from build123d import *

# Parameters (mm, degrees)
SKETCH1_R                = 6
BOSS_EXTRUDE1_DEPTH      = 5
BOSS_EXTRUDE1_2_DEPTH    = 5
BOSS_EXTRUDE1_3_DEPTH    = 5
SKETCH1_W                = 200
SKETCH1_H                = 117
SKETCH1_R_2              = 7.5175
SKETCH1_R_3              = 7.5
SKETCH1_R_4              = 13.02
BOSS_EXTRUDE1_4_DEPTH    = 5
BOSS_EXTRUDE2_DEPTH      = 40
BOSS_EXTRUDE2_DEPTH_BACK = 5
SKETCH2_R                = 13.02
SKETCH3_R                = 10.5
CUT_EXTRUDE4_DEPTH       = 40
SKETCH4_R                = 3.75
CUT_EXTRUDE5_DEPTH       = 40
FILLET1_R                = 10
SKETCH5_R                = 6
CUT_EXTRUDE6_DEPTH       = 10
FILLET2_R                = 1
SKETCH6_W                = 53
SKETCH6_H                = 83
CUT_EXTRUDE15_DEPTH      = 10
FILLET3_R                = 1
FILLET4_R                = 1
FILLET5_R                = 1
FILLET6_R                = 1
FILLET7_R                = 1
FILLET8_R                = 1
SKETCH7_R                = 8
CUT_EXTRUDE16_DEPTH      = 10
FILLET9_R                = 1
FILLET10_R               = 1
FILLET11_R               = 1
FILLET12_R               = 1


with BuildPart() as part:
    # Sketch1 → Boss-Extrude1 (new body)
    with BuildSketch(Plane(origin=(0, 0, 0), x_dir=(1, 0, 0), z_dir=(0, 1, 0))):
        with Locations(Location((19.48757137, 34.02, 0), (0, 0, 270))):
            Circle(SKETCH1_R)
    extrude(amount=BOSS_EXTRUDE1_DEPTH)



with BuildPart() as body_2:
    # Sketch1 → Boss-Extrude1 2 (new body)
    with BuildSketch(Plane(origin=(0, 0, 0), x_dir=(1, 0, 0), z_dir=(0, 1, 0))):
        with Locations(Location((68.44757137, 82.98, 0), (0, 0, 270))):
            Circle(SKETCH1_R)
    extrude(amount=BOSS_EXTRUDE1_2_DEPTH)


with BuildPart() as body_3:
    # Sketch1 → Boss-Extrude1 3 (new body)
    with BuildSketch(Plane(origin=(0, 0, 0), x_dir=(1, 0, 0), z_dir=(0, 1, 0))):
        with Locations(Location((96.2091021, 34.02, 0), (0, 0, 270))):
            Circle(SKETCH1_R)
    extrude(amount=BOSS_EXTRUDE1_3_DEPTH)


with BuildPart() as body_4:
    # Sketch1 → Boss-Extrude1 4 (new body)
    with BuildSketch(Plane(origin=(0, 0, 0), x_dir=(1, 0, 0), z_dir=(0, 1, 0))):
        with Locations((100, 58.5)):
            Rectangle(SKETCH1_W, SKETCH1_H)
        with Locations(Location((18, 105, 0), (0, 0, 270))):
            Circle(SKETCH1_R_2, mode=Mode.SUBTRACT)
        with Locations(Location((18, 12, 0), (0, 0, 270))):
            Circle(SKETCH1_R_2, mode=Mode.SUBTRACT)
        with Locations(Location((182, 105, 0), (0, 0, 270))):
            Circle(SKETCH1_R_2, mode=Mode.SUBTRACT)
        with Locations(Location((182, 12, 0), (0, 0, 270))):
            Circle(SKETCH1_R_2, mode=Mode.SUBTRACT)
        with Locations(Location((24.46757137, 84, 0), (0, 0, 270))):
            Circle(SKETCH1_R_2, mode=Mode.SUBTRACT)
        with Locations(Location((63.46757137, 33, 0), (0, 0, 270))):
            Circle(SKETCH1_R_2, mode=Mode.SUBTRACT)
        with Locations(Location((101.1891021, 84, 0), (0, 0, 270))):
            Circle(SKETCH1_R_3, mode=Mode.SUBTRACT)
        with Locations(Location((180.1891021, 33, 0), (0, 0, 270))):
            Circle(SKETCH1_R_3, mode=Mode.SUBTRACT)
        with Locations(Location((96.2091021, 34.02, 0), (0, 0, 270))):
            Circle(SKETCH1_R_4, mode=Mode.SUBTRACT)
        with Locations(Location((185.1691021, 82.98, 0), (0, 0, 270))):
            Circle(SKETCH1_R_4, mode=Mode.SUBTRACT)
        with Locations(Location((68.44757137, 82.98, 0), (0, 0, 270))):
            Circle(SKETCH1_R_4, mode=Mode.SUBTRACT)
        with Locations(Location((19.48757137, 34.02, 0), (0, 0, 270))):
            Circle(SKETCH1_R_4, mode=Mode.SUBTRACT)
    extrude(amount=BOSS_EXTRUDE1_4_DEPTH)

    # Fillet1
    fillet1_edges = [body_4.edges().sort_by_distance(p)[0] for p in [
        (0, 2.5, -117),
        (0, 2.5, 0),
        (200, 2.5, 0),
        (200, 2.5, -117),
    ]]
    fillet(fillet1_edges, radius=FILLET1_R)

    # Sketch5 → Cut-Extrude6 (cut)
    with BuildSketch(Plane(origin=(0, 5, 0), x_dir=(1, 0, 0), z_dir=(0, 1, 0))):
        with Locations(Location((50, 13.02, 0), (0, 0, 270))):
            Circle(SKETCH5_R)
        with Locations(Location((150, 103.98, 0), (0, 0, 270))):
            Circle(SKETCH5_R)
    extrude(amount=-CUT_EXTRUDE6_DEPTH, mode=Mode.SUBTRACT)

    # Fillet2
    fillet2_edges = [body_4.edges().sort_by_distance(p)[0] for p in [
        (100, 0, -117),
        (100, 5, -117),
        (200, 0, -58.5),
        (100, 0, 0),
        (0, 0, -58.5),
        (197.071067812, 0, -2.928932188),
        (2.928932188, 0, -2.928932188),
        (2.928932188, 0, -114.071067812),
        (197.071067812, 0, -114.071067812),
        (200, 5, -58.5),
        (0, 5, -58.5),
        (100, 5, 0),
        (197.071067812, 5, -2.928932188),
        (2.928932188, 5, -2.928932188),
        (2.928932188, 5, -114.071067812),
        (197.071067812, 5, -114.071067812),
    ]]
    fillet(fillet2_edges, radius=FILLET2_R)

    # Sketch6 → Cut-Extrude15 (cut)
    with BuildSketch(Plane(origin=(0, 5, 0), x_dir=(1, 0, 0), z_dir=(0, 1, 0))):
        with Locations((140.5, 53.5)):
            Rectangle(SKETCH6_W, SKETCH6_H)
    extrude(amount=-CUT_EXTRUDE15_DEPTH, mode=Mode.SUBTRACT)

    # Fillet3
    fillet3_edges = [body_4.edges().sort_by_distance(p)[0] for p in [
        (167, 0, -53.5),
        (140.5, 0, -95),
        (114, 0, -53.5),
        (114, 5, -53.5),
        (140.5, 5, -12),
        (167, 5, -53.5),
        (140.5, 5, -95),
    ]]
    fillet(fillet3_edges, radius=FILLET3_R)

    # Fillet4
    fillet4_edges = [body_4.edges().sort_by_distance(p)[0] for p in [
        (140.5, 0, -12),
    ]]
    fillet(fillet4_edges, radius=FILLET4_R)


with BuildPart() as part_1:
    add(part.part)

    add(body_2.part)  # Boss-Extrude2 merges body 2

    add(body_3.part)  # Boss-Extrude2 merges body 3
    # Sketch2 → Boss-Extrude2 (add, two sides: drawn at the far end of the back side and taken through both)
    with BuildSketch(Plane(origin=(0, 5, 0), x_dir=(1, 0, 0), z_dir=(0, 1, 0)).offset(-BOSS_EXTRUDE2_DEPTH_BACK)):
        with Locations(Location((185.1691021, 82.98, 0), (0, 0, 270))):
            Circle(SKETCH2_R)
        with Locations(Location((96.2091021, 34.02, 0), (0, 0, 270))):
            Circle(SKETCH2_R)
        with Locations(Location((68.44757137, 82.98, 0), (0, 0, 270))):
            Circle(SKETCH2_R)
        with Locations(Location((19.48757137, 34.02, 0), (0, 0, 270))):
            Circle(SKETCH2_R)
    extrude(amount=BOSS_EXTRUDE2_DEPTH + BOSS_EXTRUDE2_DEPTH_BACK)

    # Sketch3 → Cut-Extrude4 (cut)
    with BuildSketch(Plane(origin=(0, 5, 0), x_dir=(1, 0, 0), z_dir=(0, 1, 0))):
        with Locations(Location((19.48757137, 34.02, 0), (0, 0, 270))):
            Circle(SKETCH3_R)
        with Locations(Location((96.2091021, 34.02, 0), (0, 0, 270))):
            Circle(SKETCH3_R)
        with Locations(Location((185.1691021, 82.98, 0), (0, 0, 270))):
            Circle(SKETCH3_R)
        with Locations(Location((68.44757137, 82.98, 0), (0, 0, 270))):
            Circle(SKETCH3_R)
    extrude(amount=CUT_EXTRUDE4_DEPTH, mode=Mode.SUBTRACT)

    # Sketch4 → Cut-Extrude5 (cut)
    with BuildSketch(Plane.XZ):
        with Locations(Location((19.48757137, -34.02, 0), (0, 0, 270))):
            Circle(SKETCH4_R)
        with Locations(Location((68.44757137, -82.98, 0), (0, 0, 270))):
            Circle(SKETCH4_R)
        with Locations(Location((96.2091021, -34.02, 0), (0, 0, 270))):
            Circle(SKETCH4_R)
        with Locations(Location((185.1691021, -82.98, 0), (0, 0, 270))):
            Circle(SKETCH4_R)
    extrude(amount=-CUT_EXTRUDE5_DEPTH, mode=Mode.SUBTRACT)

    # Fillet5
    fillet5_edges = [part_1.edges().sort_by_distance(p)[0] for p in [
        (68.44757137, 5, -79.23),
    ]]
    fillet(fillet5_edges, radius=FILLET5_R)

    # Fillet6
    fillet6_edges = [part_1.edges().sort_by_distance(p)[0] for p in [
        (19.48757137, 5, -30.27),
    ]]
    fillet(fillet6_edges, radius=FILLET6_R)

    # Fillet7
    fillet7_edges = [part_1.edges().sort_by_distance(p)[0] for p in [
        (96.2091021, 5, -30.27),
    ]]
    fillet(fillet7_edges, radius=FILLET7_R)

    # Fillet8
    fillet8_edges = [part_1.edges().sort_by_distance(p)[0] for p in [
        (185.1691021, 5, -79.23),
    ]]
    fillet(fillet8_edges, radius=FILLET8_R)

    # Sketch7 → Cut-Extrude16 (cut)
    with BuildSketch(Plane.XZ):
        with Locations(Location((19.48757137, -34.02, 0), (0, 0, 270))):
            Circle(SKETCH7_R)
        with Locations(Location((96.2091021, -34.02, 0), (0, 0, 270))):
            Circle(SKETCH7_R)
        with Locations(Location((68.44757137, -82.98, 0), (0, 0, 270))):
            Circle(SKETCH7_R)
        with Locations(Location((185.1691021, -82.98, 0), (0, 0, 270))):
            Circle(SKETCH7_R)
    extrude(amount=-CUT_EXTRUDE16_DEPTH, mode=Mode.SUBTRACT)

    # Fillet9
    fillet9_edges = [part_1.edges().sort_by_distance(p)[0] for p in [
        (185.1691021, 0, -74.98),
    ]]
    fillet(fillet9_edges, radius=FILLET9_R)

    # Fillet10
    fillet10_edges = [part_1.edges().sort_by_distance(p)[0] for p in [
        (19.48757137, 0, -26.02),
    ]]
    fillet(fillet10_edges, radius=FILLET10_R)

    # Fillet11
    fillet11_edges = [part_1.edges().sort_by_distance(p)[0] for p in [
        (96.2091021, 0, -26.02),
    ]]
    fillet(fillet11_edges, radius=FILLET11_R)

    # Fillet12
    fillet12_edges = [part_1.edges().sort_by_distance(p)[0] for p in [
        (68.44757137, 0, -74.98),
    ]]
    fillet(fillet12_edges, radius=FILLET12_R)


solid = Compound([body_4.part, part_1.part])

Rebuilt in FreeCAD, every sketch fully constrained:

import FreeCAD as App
import Part
import Sketcher
Q = App.Units.Quantity


def edges_at(feature, points):
    """Names of the edges that pass closest to the given points."""
    edges = feature.Shape.Edges
    near = lambda p: min(range(len(edges)), key=lambda i: edges[i].distToShape(Part.Vertex(*p))[0])
    return sorted({f"Edge{near(p) + 1}" for p in points})


def add_polygon(sketch, points):
    """Adds a closed chain of lines whose ends are joined by coincident constraints."""
    first, n = sketch.GeometryCount, len(points)
    for a, b in zip(points, points[1:] + points[:1]):
        sketch.addGeometry(Part.LineSegment(App.Vector(*a, 0), App.Vector(*b, 0)), False)
    for i in range(n):
        sketch.addConstraint(Sketcher.Constraint("Coincident", first + i, 2, first + (i + 1) % n, 1))

doc = App.newDocument("Part")
body = doc.addObject("PartDesign::Body", "Body")

# Sketch on XZ plane
sketch1 = body.newObject("Sketcher::SketchObject", "Sketch")
sketch1.AttachmentSupport = (doc.getObject("XZ_Plane"), [""])
sketch1.MapMode = "FlatFace"
sketch1.addGeometry(Part.Circle(App.Vector(19.487571, -34.02, 0), App.Vector(0, 0, 1), 6), False)
sketch1.addConstraint(Sketcher.Constraint("Diameter", 0, Q("12 mm")))
sketch1.addConstraint(Sketcher.Constraint("DistanceY", 0, 3, -1, 1, Q("34.02 mm")))
sketch1.addConstraint(Sketcher.Constraint("DistanceX", -1, 1, 0, 3, Q("19.487571 mm")))
pad1 = body.newObject("PartDesign::Pad", "Pad")
pad1.Profile = sketch1
pad1.Length = 5
pad1.Reversed = True
body2 = doc.addObject("PartDesign::Body", "Body001")

# Sketch on XZ plane
sketch2 = body2.newObject("Sketcher::SketchObject", "Sketch001")
sketch2.AttachmentSupport = (doc.getObject("XZ_Plane001"), [""])
sketch2.MapMode = "FlatFace"
sketch2.addGeometry(Part.Circle(App.Vector(68.447571, -82.98, 0), App.Vector(0, 0, 1), 6), False)
sketch2.addConstraint(Sketcher.Constraint("Diameter", 0, Q("12 mm")))
sketch2.addConstraint(Sketcher.Constraint("DistanceY", 0, 3, -1, 1, Q("82.98 mm")))
sketch2.addConstraint(Sketcher.Constraint("DistanceX", -1, 1, 0, 3, Q("68.447571 mm")))
pad2 = body2.newObject("PartDesign::Pad", "Pad001")
pad2.Profile = sketch2
pad2.Length = 5
pad2.Reversed = True
body3 = doc.addObject("PartDesign::Body", "Body002")

# Sketch on XZ plane
sketch3 = body3.newObject("Sketcher::SketchObject", "Sketch002")
sketch3.AttachmentSupport = (doc.getObject("XZ_Plane002"), [""])
sketch3.MapMode = "FlatFace"
sketch3.addGeometry(Part.Circle(App.Vector(96.209102, -34.02, 0), App.Vector(0, 0, 1), 6), False)
sketch3.addConstraint(Sketcher.Constraint("Diameter", 0, Q("12 mm")))
sketch3.addConstraint(Sketcher.Constraint("DistanceY", 0, 3, -1, 1, Q("34.02 mm")))
sketch3.addConstraint(Sketcher.Constraint("DistanceX", -1, 1, 0, 3, Q("96.209102 mm")))
pad3 = body3.newObject("PartDesign::Pad", "Pad002")
pad3.Profile = sketch3
pad3.Length = 5
pad3.Reversed = True
body4 = doc.addObject("PartDesign::Body", "Body003")

# Sketch on XZ plane
sketch4 = body4.newObject("Sketcher::SketchObject", "Sketch003")
sketch4.AttachmentSupport = (doc.getObject("XZ_Plane003"), [""])
sketch4.MapMode = "FlatFace"
add_polygon(sketch4, [(0, -117), (0, 0), (200, 0), (200, -117)])  # lines 0-3
sketch4.addGeometry(Part.Circle(App.Vector(18, -12, 0), App.Vector(0, 0, 1), 7.5175), False)  # 4
sketch4.addGeometry(Part.Circle(App.Vector(19.487571, -34.02, 0), App.Vector(0, 0, 1), 13.02), False)  # 5
sketch4.addGeometry(Part.Circle(App.Vector(63.467571, -33, 0), App.Vector(0, 0, 1), 7.5175), False)  # 6
sketch4.addGeometry(Part.Circle(App.Vector(96.209102, -34.02, 0), App.Vector(0, 0, 1), 13.02), False)  # 7
sketch4.addGeometry(Part.Circle(App.Vector(182, -12, 0), App.Vector(0, 0, 1), 7.5175), False)  # 8
sketch4.addGeometry(Part.Circle(App.Vector(180.189102, -33, 0), App.Vector(0, 0, 1), 7.5), False)  # 9
sketch4.addGeometry(Part.Circle(App.Vector(24.467571, -84, 0), App.Vector(0, 0, 1), 7.5175), False)  # 10
sketch4.addGeometry(Part.Circle(App.Vector(68.447571, -82.98, 0), App.Vector(0, 0, 1), 13.02), False)  # 11
sketch4.addGeometry(Part.Circle(App.Vector(101.189102, -84, 0), App.Vector(0, 0, 1), 7.5), False)  # 12
sketch4.addGeometry(Part.Circle(App.Vector(18, -105, 0), App.Vector(0, 0, 1), 7.5175), False)  # 13
sketch4.addGeometry(Part.Circle(App.Vector(185.169102, -82.98, 0), App.Vector(0, 0, 1), 13.02), False)  # 14
sketch4.addGeometry(Part.Circle(App.Vector(182, -105, 0), App.Vector(0, 0, 1), 7.5175), False)  # 15
sketch4.addConstraint(Sketcher.Constraint("Vertical", 0))
sketch4.addConstraint(Sketcher.Constraint("Horizontal", 1))
sketch4.addConstraint(Sketcher.Constraint("Vertical", 2))
sketch4.addConstraint(Sketcher.Constraint("Horizontal", 3))
sketch4.addConstraint(Sketcher.Constraint("Coincident", 0, 2, -1, 1))
sketch4.addConstraint(Sketcher.Constraint("Equal", 4, 6))
sketch4.addConstraint(Sketcher.Constraint("Equal", 5, 7))
sketch4.addConstraint(Sketcher.Constraint("Equal", 6, 8))
sketch4.addConstraint(Sketcher.Constraint("Equal", 8, 10))
sketch4.addConstraint(Sketcher.Constraint("Equal", 7, 11))
sketch4.addConstraint(Sketcher.Constraint("Equal", 9, 12))
sketch4.addConstraint(Sketcher.Constraint("Equal", 10, 13))
sketch4.addConstraint(Sketcher.Constraint("Equal", 11, 14))
sketch4.addConstraint(Sketcher.Constraint("Equal", 13, 15))
sketch4.addConstraint(Sketcher.Constraint("Horizontal", 5, 3, 7, 3))
sketch4.addConstraint(Sketcher.Constraint("Horizontal", 4, 3, 8, 3))
sketch4.addConstraint(Sketcher.Constraint("Horizontal", 6, 3, 9, 3))
sketch4.addConstraint(Sketcher.Constraint("Horizontal", 10, 3, 12, 3))
sketch4.addConstraint(Sketcher.Constraint("Horizontal", 11, 3, 14, 3))
sketch4.addConstraint(Sketcher.Constraint("Horizontal", 13, 3, 15, 3))
sketch4.addConstraint(Sketcher.Constraint("Vertical", 4, 3, 13, 3))
sketch4.addConstraint(Sketcher.Constraint("Vertical", 8, 3, 15, 3))
sketch4.addConstraint(Sketcher.Constraint("Diameter", 9, Q("15 mm")))
sketch4.addConstraint(Sketcher.Constraint("Diameter", 5, Q("26.04 mm")))
sketch4.addConstraint(Sketcher.Constraint("DistanceX", 1, 1, 1, 2, Q("200 mm")))
sketch4.addConstraint(Sketcher.Constraint("DistanceY", 0, 1, 0, 2, Q("117 mm")))
sketch4.addConstraint(Sketcher.Constraint("Diameter", 4, Q("15.035 mm")))
sketch4.addConstraint(Sketcher.Constraint("DistanceX", -1, 1, 4, 3, Q("18 mm")))
sketch4.addConstraint(Sketcher.Constraint("DistanceY", 4, 3, -1, 1, Q("12 mm")))
sketch4.addConstraint(Sketcher.Constraint("DistanceY", 6, 3, -1, 1, Q("33 mm")))
sketch4.addConstraint(Sketcher.Constraint("DistanceX", -1, 1, 8, 3, Q("182 mm")))
sketch4.addConstraint(Sketcher.Constraint("DistanceY", 10, 3, -1, 1, Q("84 mm")))
sketch4.addConstraint(Sketcher.Constraint("DistanceY", 13, 3, -1, 1, Q("105 mm")))
sketch4.addConstraint(Sketcher.Constraint("DistanceX", 10, 3, 6, 3, Q("39 mm")))
sketch4.addConstraint(Sketcher.Constraint("DistanceX", 12, 3, 9, 3, Q("79 mm")))
sketch4.addConstraint(Sketcher.Constraint("DistanceY", 5, 3, -1, 1, Q("34.02 mm")))
sketch4.addConstraint(Sketcher.Constraint("DistanceY", 11, 3, -1, 1, Q("82.98 mm")))
sketch4.addConstraint(Sketcher.Constraint("DistanceX", 5, 3, 6, 3, Q("43.98 mm")))
sketch4.addConstraint(Sketcher.Constraint("DistanceX", 7, 3, 9, 3, Q("83.98 mm")))
sketch4.addConstraint(Sketcher.Constraint("DistanceX", 10, 3, 11, 3, Q("43.98 mm")))
sketch4.addConstraint(Sketcher.Constraint("DistanceX", 9, 3, 14, 3, Q("4.98 mm")))
sketch4.addConstraint(Sketcher.Constraint("DistanceX", -1, 1, 5, 3, Q("19.487571 mm")))
sketch4.addConstraint(Sketcher.Constraint("DistanceX", 6, 3, 7, 3, Q("32.741531 mm")))
pad4 = body4.newObject("PartDesign::Pad", "Pad003")
pad4.Profile = sketch4
pad4.Length = 5
pad4.Reversed = True
doc.recompute()

fillet = body4.newObject("PartDesign::Fillet", "Fillet")
fillet.Base = (pad4, edges_at(pad4, [
    (0, 2.5, -117),
    (0, 2.5, 0),
    (200, 2.5, 0),
    (200, 2.5, -117),
]))
fillet.Radius = 10

# Sketch on XZ plane
sketch5 = body4.newObject("Sketcher::SketchObject", "Sketch004")
sketch5.AttachmentSupport = (doc.getObject("XZ_Plane003"), [""])
sketch5.MapMode = "FlatFace"
sketch5.AttachmentOffset = App.Placement(App.Vector(0, 0, -5), App.Rotation())
sketch5.addGeometry(Part.Circle(App.Vector(50, -13.02, 0), App.Vector(0, 0, 1), 6), False)
sketch5.addGeometry(Part.Circle(App.Vector(150, -103.98, 0), App.Vector(0, 0, 1), 6), False)
sketch5.addConstraint(Sketcher.Constraint("Equal", 0, 1))
sketch5.addConstraint(Sketcher.Constraint("Diameter", 0, Q("12 mm")))
sketch5.addConstraint(Sketcher.Constraint("DistanceX", -1, 1, 0, 3, Q("50 mm")))
sketch5.addConstraint(Sketcher.Constraint("DistanceX", -1, 1, 1, 3, Q("150 mm")))
sketch5.addConstraint(Sketcher.Constraint("DistanceY", 0, 3, -1, 1, Q("13.02 mm")))
sketch5.addConstraint(Sketcher.Constraint("DistanceY", 1, 3, -1, 1, Q("103.98 mm")))
pocket1 = body4.newObject("PartDesign::Pocket", "Pocket")
pocket1.Profile = sketch5
pocket1.Length = 10
pocket1.Reversed = True
doc.recompute()

fillet2 = body4.newObject("PartDesign::Fillet", "Fillet001")
fillet2.Base = (pocket1, edges_at(pocket1, [
    (100, 0, -117),
    (100, 5, -117),
    (200, 0, -58.5),
    (100, 0, 0),
    (0, 0, -58.5),
    (197.071, 0, -2.929),
    (2.929, 0, -2.929),
    (2.929, 0, -114.071),
    (197.071, 0, -114.071),
    (200, 5, -58.5),
    (0, 5, -58.5),
    (100, 5, 0),
    (197.071, 5, -2.929),
    (2.929, 5, -2.929),
    (2.929, 5, -114.071),
    (197.071, 5, -114.071),
]))
fillet2.Radius = 1

# Sketch on XZ plane
sketch6 = body4.newObject("Sketcher::SketchObject", "Sketch005")
sketch6.AttachmentSupport = (doc.getObject("XZ_Plane003"), [""])
sketch6.MapMode = "FlatFace"
sketch6.AttachmentOffset = App.Placement(App.Vector(0, 0, -5), App.Rotation())
add_polygon(sketch6, [(114, -95), (114, -12), (167, -12), (167, -95)])  # lines 0-3
sketch6.addConstraint(Sketcher.Constraint("Vertical", 0))
sketch6.addConstraint(Sketcher.Constraint("Horizontal", 1))
sketch6.addConstraint(Sketcher.Constraint("Vertical", 2))
sketch6.addConstraint(Sketcher.Constraint("Horizontal", 3))
sketch6.addConstraint(Sketcher.Constraint("DistanceX", 1, 1, 1, 2, Q("53 mm")))
sketch6.addConstraint(Sketcher.Constraint("DistanceY", 0, 1, 0, 2, Q("83 mm")))
sketch6.addConstraint(Sketcher.Constraint("DistanceX", -1, 1, 0, 2, Q("114 mm")))
sketch6.addConstraint(Sketcher.Constraint("DistanceY", 0, 2, -1, 1, Q("12 mm")))
pocket2 = body4.newObject("PartDesign::Pocket", "Pocket001")
pocket2.Profile = sketch6
pocket2.Length = 10
pocket2.Reversed = True
doc.recompute()

fillet3 = body4.newObject("PartDesign::Fillet", "Fillet002")
fillet3.Base = (pocket2, edges_at(pocket2, [
    (167, 0, -53.5),
    (140.5, 0, -95),
    (114, 0, -53.5),
    (114, 5, -53.5),
    (140.5, 5, -12),
    (167, 5, -53.5),
    (140.5, 5, -95),
]))
fillet3.Radius = 1
doc.recompute()

fillet4 = body4.newObject("PartDesign::Fillet", "Fillet003")
fillet4.Base = (fillet3, edges_at(fillet3, [(140.5, 0, -12)]))
fillet4.Radius = 1
body.AllowCompound = True
doc.recompute()

boolean = body.newObject("PartDesign::Boolean", "Boolean")
boolean.Type = "Fuse"
boolean.addObjects([body2])
doc.recompute()

boolean2 = body.newObject("PartDesign::Boolean", "Boolean001")
boolean2.Type = "Fuse"
boolean2.addObjects([body3])

# Sketch on XZ plane
sketch7 = body.newObject("Sketcher::SketchObject", "Sketch006")
sketch7.AttachmentSupport = (doc.getObject("XZ_Plane"), [""])
sketch7.MapMode = "FlatFace"
sketch7.AttachmentOffset = App.Placement(App.Vector(0, 0, -5), App.Rotation())
sketch7.addGeometry(Part.Circle(App.Vector(185.169102, -82.98, 0), App.Vector(0, 0, 1), 13.02), False)
sketch7.addGeometry(Part.Circle(App.Vector(96.209102, -34.02, 0), App.Vector(0, 0, 1), 13.02), False)
sketch7.addGeometry(Part.Circle(App.Vector(68.447571, -82.98, 0), App.Vector(0, 0, 1), 13.02), False)
sketch7.addGeometry(Part.Circle(App.Vector(19.487571, -34.02, 0), App.Vector(0, 0, 1), 13.02), False)
sketch7.addConstraint(Sketcher.Constraint("Equal", 0, 1))
sketch7.addConstraint(Sketcher.Constraint("Equal", 1, 2))
sketch7.addConstraint(Sketcher.Constraint("Equal", 2, 3))
sketch7.addConstraint(Sketcher.Constraint("Horizontal", 0, 3, 2, 3))
sketch7.addConstraint(Sketcher.Constraint("Horizontal", 1, 3, 3, 3))
sketch7.addConstraint(Sketcher.Constraint("Diameter", 0, Q("26.04 mm")))
sketch7.addConstraint(Sketcher.Constraint("DistanceY", 0, 3, -1, 1, Q("82.98 mm")))
sketch7.addConstraint(Sketcher.Constraint("DistanceY", 1, 3, -1, 1, Q("34.02 mm")))
sketch7.addConstraint(Sketcher.Constraint("DistanceX", 1, 3, 0, 3, Q("88.96 mm")))
sketch7.addConstraint(Sketcher.Constraint("DistanceX", 3, 3, 2, 3, Q("48.96 mm")))
sketch7.addConstraint(Sketcher.Constraint("DistanceX", -1, 1, 2, 3, Q("68.447571 mm")))
sketch7.addConstraint(Sketcher.Constraint("DistanceX", 2, 3, 1, 3, Q("27.761531 mm")))
pad5 = body.newObject("PartDesign::Pad", "Pad004")
pad5.Profile = sketch7
pad5.Type = "TwoLengths"
pad5.Length = 40
pad5.Length2 = 5
pad5.Reversed = True

# Sketch on XZ plane
sketch8 = body.newObject("Sketcher::SketchObject", "Sketch007")
sketch8.AttachmentSupport = (doc.getObject("XZ_Plane"), [""])
sketch8.MapMode = "FlatFace"
sketch8.AttachmentOffset = App.Placement(App.Vector(0, 0, -5), App.Rotation())
sketch8.addGeometry(Part.Circle(App.Vector(19.487571, -34.02, 0), App.Vector(0, 0, 1), 10.5), False)
sketch8.addGeometry(Part.Circle(App.Vector(96.209102, -34.02, 0), App.Vector(0, 0, 1), 10.5), False)
sketch8.addGeometry(Part.Circle(App.Vector(185.169102, -82.98, 0), App.Vector(0, 0, 1), 10.5), False)
sketch8.addGeometry(Part.Circle(App.Vector(68.447571, -82.98, 0), App.Vector(0, 0, 1), 10.5), False)
sketch8.addConstraint(Sketcher.Constraint("Equal", 0, 1))
sketch8.addConstraint(Sketcher.Constraint("Equal", 1, 2))
sketch8.addConstraint(Sketcher.Constraint("Equal", 2, 3))
sketch8.addConstraint(Sketcher.Constraint("Horizontal", 0, 3, 1, 3))
sketch8.addConstraint(Sketcher.Constraint("Horizontal", 2, 3, 3, 3))
sketch8.addConstraint(Sketcher.Constraint("Diameter", 0, Q("21 mm")))
sketch8.addConstraint(Sketcher.Constraint("DistanceY", 0, 3, -1, 1, Q("34.02 mm")))
sketch8.addConstraint(Sketcher.Constraint("DistanceY", 2, 3, -1, 1, Q("82.98 mm")))
sketch8.addConstraint(Sketcher.Constraint("DistanceX", 1, 3, 2, 3, Q("88.96 mm")))
sketch8.addConstraint(Sketcher.Constraint("DistanceX", 0, 3, 3, 3, Q("48.96 mm")))
sketch8.addConstraint(Sketcher.Constraint("DistanceX", -1, 1, 0, 3, Q("19.487571 mm")))
sketch8.addConstraint(Sketcher.Constraint("DistanceX", 0, 3, 1, 3, Q("76.721531 mm")))
pocket3 = body.newObject("PartDesign::Pocket", "Pocket002")
pocket3.Profile = sketch8
pocket3.Length = 40

# Sketch on XZ plane
sketch9 = body.newObject("Sketcher::SketchObject", "Sketch008")
sketch9.AttachmentSupport = (doc.getObject("XZ_Plane"), [""])
sketch9.MapMode = "FlatFace"
sketch9.addGeometry(Part.Circle(App.Vector(19.487571, -34.02, 0), App.Vector(0, 0, 1), 3.75), False)
sketch9.addGeometry(Part.Circle(App.Vector(68.447571, -82.98, 0), App.Vector(0, 0, 1), 3.75), False)
sketch9.addGeometry(Part.Circle(App.Vector(96.209102, -34.02, 0), App.Vector(0, 0, 1), 3.75), False)
sketch9.addGeometry(Part.Circle(App.Vector(185.169102, -82.98, 0), App.Vector(0, 0, 1), 3.75), False)
sketch9.addConstraint(Sketcher.Constraint("Equal", 0, 1))
sketch9.addConstraint(Sketcher.Constraint("Equal", 1, 2))
sketch9.addConstraint(Sketcher.Constraint("Equal", 2, 3))
sketch9.addConstraint(Sketcher.Constraint("Horizontal", 0, 3, 2, 3))
sketch9.addConstraint(Sketcher.Constraint("Horizontal", 1, 3, 3, 3))
sketch9.addConstraint(Sketcher.Constraint("Diameter", 0, Q("7.5 mm")))
sketch9.addConstraint(Sketcher.Constraint("DistanceY", 0, 3, -1, 1, Q("34.02 mm")))
sketch9.addConstraint(Sketcher.Constraint("DistanceY", 1, 3, -1, 1, Q("82.98 mm")))
sketch9.addConstraint(Sketcher.Constraint("DistanceX", 0, 3, 1, 3, Q("48.96 mm")))
sketch9.addConstraint(Sketcher.Constraint("DistanceX", 2, 3, 3, 3, Q("88.96 mm")))
sketch9.addConstraint(Sketcher.Constraint("DistanceX", -1, 1, 0, 3, Q("19.487571 mm")))
sketch9.addConstraint(Sketcher.Constraint("DistanceX", 1, 3, 2, 3, Q("27.761531 mm")))
pocket4 = body.newObject("PartDesign::Pocket", "Pocket003")
pocket4.Profile = sketch9
pocket4.Length = 40
doc.recompute()

fillet5 = body.newObject("PartDesign::Fillet", "Fillet004")
fillet5.Base = (pocket4, edges_at(pocket4, [(68.448, 5, -79.23)]))
fillet5.Radius = 1
doc.recompute()

fillet6 = body.newObject("PartDesign::Fillet", "Fillet005")
fillet6.Base = (fillet5, edges_at(fillet5, [(19.488, 5, -30.27)]))
fillet6.Radius = 1
doc.recompute()

fillet7 = body.newObject("PartDesign::Fillet", "Fillet006")
fillet7.Base = (fillet6, edges_at(fillet6, [(96.209, 5, -30.27)]))
fillet7.Radius = 1
doc.recompute()

fillet8 = body.newObject("PartDesign::Fillet", "Fillet007")
fillet8.Base = (fillet7, edges_at(fillet7, [(185.169, 5, -79.23)]))
fillet8.Radius = 1

# Sketch on XZ plane
sketch10 = body.newObject("Sketcher::SketchObject", "Sketch009")
sketch10.AttachmentSupport = (doc.getObject("XZ_Plane"), [""])
sketch10.MapMode = "FlatFace"
sketch10.addGeometry(Part.Circle(App.Vector(19.487571, -34.02, 0), App.Vector(0, 0, 1), 8), False)
sketch10.addGeometry(Part.Circle(App.Vector(96.209102, -34.02, 0), App.Vector(0, 0, 1), 8), False)
sketch10.addGeometry(Part.Circle(App.Vector(68.447571, -82.98, 0), App.Vector(0, 0, 1), 8), False)
sketch10.addGeometry(Part.Circle(App.Vector(185.169102, -82.98, 0), App.Vector(0, 0, 1), 8), False)
sketch10.addConstraint(Sketcher.Constraint("Equal", 0, 1))
sketch10.addConstraint(Sketcher.Constraint("Equal", 1, 2))
sketch10.addConstraint(Sketcher.Constraint("Equal", 2, 3))
sketch10.addConstraint(Sketcher.Constraint("Horizontal", 0, 3, 1, 3))
sketch10.addConstraint(Sketcher.Constraint("Horizontal", 2, 3, 3, 3))
sketch10.addConstraint(Sketcher.Constraint("Diameter", 0, Q("16 mm")))
sketch10.addConstraint(Sketcher.Constraint("DistanceY", 0, 3, -1, 1, Q("34.02 mm")))
sketch10.addConstraint(Sketcher.Constraint("DistanceY", 2, 3, -1, 1, Q("82.98 mm")))
sketch10.addConstraint(Sketcher.Constraint("DistanceX", 0, 3, 2, 3, Q("48.96 mm")))
sketch10.addConstraint(Sketcher.Constraint("DistanceX", 1, 3, 3, 3, Q("88.96 mm")))
sketch10.addConstraint(Sketcher.Constraint("DistanceX", -1, 1, 0, 3, Q("19.487571 mm")))
sketch10.addConstraint(Sketcher.Constraint("DistanceX", 0, 3, 1, 3, Q("76.721531 mm")))
pocket5 = body.newObject("PartDesign::Pocket", "Pocket004")
pocket5.Profile = sketch10
pocket5.Length = 10
doc.recompute()

fillet9 = body.newObject("PartDesign::Fillet", "Fillet008")
fillet9.Base = (pocket5, edges_at(pocket5, [(185.169, 0, -74.98)]))
fillet9.Radius = 1
doc.recompute()

fillet10 = body.newObject("PartDesign::Fillet", "Fillet009")
fillet10.Base = (fillet9, edges_at(fillet9, [(19.488, 0, -26.02)]))
fillet10.Radius = 1
doc.recompute()

fillet11 = body.newObject("PartDesign::Fillet", "Fillet010")
fillet11.Base = (fillet10, edges_at(fillet10, [(96.209, 0, -26.02)]))
fillet11.Radius = 1
doc.recompute()

fillet12 = body.newObject("PartDesign::Fillet", "Fillet011")
fillet12.Base = (fillet11, edges_at(fillet11, [(68.448, 0, -74.98)]))
fillet12.Radius = 1

doc.recompute()
